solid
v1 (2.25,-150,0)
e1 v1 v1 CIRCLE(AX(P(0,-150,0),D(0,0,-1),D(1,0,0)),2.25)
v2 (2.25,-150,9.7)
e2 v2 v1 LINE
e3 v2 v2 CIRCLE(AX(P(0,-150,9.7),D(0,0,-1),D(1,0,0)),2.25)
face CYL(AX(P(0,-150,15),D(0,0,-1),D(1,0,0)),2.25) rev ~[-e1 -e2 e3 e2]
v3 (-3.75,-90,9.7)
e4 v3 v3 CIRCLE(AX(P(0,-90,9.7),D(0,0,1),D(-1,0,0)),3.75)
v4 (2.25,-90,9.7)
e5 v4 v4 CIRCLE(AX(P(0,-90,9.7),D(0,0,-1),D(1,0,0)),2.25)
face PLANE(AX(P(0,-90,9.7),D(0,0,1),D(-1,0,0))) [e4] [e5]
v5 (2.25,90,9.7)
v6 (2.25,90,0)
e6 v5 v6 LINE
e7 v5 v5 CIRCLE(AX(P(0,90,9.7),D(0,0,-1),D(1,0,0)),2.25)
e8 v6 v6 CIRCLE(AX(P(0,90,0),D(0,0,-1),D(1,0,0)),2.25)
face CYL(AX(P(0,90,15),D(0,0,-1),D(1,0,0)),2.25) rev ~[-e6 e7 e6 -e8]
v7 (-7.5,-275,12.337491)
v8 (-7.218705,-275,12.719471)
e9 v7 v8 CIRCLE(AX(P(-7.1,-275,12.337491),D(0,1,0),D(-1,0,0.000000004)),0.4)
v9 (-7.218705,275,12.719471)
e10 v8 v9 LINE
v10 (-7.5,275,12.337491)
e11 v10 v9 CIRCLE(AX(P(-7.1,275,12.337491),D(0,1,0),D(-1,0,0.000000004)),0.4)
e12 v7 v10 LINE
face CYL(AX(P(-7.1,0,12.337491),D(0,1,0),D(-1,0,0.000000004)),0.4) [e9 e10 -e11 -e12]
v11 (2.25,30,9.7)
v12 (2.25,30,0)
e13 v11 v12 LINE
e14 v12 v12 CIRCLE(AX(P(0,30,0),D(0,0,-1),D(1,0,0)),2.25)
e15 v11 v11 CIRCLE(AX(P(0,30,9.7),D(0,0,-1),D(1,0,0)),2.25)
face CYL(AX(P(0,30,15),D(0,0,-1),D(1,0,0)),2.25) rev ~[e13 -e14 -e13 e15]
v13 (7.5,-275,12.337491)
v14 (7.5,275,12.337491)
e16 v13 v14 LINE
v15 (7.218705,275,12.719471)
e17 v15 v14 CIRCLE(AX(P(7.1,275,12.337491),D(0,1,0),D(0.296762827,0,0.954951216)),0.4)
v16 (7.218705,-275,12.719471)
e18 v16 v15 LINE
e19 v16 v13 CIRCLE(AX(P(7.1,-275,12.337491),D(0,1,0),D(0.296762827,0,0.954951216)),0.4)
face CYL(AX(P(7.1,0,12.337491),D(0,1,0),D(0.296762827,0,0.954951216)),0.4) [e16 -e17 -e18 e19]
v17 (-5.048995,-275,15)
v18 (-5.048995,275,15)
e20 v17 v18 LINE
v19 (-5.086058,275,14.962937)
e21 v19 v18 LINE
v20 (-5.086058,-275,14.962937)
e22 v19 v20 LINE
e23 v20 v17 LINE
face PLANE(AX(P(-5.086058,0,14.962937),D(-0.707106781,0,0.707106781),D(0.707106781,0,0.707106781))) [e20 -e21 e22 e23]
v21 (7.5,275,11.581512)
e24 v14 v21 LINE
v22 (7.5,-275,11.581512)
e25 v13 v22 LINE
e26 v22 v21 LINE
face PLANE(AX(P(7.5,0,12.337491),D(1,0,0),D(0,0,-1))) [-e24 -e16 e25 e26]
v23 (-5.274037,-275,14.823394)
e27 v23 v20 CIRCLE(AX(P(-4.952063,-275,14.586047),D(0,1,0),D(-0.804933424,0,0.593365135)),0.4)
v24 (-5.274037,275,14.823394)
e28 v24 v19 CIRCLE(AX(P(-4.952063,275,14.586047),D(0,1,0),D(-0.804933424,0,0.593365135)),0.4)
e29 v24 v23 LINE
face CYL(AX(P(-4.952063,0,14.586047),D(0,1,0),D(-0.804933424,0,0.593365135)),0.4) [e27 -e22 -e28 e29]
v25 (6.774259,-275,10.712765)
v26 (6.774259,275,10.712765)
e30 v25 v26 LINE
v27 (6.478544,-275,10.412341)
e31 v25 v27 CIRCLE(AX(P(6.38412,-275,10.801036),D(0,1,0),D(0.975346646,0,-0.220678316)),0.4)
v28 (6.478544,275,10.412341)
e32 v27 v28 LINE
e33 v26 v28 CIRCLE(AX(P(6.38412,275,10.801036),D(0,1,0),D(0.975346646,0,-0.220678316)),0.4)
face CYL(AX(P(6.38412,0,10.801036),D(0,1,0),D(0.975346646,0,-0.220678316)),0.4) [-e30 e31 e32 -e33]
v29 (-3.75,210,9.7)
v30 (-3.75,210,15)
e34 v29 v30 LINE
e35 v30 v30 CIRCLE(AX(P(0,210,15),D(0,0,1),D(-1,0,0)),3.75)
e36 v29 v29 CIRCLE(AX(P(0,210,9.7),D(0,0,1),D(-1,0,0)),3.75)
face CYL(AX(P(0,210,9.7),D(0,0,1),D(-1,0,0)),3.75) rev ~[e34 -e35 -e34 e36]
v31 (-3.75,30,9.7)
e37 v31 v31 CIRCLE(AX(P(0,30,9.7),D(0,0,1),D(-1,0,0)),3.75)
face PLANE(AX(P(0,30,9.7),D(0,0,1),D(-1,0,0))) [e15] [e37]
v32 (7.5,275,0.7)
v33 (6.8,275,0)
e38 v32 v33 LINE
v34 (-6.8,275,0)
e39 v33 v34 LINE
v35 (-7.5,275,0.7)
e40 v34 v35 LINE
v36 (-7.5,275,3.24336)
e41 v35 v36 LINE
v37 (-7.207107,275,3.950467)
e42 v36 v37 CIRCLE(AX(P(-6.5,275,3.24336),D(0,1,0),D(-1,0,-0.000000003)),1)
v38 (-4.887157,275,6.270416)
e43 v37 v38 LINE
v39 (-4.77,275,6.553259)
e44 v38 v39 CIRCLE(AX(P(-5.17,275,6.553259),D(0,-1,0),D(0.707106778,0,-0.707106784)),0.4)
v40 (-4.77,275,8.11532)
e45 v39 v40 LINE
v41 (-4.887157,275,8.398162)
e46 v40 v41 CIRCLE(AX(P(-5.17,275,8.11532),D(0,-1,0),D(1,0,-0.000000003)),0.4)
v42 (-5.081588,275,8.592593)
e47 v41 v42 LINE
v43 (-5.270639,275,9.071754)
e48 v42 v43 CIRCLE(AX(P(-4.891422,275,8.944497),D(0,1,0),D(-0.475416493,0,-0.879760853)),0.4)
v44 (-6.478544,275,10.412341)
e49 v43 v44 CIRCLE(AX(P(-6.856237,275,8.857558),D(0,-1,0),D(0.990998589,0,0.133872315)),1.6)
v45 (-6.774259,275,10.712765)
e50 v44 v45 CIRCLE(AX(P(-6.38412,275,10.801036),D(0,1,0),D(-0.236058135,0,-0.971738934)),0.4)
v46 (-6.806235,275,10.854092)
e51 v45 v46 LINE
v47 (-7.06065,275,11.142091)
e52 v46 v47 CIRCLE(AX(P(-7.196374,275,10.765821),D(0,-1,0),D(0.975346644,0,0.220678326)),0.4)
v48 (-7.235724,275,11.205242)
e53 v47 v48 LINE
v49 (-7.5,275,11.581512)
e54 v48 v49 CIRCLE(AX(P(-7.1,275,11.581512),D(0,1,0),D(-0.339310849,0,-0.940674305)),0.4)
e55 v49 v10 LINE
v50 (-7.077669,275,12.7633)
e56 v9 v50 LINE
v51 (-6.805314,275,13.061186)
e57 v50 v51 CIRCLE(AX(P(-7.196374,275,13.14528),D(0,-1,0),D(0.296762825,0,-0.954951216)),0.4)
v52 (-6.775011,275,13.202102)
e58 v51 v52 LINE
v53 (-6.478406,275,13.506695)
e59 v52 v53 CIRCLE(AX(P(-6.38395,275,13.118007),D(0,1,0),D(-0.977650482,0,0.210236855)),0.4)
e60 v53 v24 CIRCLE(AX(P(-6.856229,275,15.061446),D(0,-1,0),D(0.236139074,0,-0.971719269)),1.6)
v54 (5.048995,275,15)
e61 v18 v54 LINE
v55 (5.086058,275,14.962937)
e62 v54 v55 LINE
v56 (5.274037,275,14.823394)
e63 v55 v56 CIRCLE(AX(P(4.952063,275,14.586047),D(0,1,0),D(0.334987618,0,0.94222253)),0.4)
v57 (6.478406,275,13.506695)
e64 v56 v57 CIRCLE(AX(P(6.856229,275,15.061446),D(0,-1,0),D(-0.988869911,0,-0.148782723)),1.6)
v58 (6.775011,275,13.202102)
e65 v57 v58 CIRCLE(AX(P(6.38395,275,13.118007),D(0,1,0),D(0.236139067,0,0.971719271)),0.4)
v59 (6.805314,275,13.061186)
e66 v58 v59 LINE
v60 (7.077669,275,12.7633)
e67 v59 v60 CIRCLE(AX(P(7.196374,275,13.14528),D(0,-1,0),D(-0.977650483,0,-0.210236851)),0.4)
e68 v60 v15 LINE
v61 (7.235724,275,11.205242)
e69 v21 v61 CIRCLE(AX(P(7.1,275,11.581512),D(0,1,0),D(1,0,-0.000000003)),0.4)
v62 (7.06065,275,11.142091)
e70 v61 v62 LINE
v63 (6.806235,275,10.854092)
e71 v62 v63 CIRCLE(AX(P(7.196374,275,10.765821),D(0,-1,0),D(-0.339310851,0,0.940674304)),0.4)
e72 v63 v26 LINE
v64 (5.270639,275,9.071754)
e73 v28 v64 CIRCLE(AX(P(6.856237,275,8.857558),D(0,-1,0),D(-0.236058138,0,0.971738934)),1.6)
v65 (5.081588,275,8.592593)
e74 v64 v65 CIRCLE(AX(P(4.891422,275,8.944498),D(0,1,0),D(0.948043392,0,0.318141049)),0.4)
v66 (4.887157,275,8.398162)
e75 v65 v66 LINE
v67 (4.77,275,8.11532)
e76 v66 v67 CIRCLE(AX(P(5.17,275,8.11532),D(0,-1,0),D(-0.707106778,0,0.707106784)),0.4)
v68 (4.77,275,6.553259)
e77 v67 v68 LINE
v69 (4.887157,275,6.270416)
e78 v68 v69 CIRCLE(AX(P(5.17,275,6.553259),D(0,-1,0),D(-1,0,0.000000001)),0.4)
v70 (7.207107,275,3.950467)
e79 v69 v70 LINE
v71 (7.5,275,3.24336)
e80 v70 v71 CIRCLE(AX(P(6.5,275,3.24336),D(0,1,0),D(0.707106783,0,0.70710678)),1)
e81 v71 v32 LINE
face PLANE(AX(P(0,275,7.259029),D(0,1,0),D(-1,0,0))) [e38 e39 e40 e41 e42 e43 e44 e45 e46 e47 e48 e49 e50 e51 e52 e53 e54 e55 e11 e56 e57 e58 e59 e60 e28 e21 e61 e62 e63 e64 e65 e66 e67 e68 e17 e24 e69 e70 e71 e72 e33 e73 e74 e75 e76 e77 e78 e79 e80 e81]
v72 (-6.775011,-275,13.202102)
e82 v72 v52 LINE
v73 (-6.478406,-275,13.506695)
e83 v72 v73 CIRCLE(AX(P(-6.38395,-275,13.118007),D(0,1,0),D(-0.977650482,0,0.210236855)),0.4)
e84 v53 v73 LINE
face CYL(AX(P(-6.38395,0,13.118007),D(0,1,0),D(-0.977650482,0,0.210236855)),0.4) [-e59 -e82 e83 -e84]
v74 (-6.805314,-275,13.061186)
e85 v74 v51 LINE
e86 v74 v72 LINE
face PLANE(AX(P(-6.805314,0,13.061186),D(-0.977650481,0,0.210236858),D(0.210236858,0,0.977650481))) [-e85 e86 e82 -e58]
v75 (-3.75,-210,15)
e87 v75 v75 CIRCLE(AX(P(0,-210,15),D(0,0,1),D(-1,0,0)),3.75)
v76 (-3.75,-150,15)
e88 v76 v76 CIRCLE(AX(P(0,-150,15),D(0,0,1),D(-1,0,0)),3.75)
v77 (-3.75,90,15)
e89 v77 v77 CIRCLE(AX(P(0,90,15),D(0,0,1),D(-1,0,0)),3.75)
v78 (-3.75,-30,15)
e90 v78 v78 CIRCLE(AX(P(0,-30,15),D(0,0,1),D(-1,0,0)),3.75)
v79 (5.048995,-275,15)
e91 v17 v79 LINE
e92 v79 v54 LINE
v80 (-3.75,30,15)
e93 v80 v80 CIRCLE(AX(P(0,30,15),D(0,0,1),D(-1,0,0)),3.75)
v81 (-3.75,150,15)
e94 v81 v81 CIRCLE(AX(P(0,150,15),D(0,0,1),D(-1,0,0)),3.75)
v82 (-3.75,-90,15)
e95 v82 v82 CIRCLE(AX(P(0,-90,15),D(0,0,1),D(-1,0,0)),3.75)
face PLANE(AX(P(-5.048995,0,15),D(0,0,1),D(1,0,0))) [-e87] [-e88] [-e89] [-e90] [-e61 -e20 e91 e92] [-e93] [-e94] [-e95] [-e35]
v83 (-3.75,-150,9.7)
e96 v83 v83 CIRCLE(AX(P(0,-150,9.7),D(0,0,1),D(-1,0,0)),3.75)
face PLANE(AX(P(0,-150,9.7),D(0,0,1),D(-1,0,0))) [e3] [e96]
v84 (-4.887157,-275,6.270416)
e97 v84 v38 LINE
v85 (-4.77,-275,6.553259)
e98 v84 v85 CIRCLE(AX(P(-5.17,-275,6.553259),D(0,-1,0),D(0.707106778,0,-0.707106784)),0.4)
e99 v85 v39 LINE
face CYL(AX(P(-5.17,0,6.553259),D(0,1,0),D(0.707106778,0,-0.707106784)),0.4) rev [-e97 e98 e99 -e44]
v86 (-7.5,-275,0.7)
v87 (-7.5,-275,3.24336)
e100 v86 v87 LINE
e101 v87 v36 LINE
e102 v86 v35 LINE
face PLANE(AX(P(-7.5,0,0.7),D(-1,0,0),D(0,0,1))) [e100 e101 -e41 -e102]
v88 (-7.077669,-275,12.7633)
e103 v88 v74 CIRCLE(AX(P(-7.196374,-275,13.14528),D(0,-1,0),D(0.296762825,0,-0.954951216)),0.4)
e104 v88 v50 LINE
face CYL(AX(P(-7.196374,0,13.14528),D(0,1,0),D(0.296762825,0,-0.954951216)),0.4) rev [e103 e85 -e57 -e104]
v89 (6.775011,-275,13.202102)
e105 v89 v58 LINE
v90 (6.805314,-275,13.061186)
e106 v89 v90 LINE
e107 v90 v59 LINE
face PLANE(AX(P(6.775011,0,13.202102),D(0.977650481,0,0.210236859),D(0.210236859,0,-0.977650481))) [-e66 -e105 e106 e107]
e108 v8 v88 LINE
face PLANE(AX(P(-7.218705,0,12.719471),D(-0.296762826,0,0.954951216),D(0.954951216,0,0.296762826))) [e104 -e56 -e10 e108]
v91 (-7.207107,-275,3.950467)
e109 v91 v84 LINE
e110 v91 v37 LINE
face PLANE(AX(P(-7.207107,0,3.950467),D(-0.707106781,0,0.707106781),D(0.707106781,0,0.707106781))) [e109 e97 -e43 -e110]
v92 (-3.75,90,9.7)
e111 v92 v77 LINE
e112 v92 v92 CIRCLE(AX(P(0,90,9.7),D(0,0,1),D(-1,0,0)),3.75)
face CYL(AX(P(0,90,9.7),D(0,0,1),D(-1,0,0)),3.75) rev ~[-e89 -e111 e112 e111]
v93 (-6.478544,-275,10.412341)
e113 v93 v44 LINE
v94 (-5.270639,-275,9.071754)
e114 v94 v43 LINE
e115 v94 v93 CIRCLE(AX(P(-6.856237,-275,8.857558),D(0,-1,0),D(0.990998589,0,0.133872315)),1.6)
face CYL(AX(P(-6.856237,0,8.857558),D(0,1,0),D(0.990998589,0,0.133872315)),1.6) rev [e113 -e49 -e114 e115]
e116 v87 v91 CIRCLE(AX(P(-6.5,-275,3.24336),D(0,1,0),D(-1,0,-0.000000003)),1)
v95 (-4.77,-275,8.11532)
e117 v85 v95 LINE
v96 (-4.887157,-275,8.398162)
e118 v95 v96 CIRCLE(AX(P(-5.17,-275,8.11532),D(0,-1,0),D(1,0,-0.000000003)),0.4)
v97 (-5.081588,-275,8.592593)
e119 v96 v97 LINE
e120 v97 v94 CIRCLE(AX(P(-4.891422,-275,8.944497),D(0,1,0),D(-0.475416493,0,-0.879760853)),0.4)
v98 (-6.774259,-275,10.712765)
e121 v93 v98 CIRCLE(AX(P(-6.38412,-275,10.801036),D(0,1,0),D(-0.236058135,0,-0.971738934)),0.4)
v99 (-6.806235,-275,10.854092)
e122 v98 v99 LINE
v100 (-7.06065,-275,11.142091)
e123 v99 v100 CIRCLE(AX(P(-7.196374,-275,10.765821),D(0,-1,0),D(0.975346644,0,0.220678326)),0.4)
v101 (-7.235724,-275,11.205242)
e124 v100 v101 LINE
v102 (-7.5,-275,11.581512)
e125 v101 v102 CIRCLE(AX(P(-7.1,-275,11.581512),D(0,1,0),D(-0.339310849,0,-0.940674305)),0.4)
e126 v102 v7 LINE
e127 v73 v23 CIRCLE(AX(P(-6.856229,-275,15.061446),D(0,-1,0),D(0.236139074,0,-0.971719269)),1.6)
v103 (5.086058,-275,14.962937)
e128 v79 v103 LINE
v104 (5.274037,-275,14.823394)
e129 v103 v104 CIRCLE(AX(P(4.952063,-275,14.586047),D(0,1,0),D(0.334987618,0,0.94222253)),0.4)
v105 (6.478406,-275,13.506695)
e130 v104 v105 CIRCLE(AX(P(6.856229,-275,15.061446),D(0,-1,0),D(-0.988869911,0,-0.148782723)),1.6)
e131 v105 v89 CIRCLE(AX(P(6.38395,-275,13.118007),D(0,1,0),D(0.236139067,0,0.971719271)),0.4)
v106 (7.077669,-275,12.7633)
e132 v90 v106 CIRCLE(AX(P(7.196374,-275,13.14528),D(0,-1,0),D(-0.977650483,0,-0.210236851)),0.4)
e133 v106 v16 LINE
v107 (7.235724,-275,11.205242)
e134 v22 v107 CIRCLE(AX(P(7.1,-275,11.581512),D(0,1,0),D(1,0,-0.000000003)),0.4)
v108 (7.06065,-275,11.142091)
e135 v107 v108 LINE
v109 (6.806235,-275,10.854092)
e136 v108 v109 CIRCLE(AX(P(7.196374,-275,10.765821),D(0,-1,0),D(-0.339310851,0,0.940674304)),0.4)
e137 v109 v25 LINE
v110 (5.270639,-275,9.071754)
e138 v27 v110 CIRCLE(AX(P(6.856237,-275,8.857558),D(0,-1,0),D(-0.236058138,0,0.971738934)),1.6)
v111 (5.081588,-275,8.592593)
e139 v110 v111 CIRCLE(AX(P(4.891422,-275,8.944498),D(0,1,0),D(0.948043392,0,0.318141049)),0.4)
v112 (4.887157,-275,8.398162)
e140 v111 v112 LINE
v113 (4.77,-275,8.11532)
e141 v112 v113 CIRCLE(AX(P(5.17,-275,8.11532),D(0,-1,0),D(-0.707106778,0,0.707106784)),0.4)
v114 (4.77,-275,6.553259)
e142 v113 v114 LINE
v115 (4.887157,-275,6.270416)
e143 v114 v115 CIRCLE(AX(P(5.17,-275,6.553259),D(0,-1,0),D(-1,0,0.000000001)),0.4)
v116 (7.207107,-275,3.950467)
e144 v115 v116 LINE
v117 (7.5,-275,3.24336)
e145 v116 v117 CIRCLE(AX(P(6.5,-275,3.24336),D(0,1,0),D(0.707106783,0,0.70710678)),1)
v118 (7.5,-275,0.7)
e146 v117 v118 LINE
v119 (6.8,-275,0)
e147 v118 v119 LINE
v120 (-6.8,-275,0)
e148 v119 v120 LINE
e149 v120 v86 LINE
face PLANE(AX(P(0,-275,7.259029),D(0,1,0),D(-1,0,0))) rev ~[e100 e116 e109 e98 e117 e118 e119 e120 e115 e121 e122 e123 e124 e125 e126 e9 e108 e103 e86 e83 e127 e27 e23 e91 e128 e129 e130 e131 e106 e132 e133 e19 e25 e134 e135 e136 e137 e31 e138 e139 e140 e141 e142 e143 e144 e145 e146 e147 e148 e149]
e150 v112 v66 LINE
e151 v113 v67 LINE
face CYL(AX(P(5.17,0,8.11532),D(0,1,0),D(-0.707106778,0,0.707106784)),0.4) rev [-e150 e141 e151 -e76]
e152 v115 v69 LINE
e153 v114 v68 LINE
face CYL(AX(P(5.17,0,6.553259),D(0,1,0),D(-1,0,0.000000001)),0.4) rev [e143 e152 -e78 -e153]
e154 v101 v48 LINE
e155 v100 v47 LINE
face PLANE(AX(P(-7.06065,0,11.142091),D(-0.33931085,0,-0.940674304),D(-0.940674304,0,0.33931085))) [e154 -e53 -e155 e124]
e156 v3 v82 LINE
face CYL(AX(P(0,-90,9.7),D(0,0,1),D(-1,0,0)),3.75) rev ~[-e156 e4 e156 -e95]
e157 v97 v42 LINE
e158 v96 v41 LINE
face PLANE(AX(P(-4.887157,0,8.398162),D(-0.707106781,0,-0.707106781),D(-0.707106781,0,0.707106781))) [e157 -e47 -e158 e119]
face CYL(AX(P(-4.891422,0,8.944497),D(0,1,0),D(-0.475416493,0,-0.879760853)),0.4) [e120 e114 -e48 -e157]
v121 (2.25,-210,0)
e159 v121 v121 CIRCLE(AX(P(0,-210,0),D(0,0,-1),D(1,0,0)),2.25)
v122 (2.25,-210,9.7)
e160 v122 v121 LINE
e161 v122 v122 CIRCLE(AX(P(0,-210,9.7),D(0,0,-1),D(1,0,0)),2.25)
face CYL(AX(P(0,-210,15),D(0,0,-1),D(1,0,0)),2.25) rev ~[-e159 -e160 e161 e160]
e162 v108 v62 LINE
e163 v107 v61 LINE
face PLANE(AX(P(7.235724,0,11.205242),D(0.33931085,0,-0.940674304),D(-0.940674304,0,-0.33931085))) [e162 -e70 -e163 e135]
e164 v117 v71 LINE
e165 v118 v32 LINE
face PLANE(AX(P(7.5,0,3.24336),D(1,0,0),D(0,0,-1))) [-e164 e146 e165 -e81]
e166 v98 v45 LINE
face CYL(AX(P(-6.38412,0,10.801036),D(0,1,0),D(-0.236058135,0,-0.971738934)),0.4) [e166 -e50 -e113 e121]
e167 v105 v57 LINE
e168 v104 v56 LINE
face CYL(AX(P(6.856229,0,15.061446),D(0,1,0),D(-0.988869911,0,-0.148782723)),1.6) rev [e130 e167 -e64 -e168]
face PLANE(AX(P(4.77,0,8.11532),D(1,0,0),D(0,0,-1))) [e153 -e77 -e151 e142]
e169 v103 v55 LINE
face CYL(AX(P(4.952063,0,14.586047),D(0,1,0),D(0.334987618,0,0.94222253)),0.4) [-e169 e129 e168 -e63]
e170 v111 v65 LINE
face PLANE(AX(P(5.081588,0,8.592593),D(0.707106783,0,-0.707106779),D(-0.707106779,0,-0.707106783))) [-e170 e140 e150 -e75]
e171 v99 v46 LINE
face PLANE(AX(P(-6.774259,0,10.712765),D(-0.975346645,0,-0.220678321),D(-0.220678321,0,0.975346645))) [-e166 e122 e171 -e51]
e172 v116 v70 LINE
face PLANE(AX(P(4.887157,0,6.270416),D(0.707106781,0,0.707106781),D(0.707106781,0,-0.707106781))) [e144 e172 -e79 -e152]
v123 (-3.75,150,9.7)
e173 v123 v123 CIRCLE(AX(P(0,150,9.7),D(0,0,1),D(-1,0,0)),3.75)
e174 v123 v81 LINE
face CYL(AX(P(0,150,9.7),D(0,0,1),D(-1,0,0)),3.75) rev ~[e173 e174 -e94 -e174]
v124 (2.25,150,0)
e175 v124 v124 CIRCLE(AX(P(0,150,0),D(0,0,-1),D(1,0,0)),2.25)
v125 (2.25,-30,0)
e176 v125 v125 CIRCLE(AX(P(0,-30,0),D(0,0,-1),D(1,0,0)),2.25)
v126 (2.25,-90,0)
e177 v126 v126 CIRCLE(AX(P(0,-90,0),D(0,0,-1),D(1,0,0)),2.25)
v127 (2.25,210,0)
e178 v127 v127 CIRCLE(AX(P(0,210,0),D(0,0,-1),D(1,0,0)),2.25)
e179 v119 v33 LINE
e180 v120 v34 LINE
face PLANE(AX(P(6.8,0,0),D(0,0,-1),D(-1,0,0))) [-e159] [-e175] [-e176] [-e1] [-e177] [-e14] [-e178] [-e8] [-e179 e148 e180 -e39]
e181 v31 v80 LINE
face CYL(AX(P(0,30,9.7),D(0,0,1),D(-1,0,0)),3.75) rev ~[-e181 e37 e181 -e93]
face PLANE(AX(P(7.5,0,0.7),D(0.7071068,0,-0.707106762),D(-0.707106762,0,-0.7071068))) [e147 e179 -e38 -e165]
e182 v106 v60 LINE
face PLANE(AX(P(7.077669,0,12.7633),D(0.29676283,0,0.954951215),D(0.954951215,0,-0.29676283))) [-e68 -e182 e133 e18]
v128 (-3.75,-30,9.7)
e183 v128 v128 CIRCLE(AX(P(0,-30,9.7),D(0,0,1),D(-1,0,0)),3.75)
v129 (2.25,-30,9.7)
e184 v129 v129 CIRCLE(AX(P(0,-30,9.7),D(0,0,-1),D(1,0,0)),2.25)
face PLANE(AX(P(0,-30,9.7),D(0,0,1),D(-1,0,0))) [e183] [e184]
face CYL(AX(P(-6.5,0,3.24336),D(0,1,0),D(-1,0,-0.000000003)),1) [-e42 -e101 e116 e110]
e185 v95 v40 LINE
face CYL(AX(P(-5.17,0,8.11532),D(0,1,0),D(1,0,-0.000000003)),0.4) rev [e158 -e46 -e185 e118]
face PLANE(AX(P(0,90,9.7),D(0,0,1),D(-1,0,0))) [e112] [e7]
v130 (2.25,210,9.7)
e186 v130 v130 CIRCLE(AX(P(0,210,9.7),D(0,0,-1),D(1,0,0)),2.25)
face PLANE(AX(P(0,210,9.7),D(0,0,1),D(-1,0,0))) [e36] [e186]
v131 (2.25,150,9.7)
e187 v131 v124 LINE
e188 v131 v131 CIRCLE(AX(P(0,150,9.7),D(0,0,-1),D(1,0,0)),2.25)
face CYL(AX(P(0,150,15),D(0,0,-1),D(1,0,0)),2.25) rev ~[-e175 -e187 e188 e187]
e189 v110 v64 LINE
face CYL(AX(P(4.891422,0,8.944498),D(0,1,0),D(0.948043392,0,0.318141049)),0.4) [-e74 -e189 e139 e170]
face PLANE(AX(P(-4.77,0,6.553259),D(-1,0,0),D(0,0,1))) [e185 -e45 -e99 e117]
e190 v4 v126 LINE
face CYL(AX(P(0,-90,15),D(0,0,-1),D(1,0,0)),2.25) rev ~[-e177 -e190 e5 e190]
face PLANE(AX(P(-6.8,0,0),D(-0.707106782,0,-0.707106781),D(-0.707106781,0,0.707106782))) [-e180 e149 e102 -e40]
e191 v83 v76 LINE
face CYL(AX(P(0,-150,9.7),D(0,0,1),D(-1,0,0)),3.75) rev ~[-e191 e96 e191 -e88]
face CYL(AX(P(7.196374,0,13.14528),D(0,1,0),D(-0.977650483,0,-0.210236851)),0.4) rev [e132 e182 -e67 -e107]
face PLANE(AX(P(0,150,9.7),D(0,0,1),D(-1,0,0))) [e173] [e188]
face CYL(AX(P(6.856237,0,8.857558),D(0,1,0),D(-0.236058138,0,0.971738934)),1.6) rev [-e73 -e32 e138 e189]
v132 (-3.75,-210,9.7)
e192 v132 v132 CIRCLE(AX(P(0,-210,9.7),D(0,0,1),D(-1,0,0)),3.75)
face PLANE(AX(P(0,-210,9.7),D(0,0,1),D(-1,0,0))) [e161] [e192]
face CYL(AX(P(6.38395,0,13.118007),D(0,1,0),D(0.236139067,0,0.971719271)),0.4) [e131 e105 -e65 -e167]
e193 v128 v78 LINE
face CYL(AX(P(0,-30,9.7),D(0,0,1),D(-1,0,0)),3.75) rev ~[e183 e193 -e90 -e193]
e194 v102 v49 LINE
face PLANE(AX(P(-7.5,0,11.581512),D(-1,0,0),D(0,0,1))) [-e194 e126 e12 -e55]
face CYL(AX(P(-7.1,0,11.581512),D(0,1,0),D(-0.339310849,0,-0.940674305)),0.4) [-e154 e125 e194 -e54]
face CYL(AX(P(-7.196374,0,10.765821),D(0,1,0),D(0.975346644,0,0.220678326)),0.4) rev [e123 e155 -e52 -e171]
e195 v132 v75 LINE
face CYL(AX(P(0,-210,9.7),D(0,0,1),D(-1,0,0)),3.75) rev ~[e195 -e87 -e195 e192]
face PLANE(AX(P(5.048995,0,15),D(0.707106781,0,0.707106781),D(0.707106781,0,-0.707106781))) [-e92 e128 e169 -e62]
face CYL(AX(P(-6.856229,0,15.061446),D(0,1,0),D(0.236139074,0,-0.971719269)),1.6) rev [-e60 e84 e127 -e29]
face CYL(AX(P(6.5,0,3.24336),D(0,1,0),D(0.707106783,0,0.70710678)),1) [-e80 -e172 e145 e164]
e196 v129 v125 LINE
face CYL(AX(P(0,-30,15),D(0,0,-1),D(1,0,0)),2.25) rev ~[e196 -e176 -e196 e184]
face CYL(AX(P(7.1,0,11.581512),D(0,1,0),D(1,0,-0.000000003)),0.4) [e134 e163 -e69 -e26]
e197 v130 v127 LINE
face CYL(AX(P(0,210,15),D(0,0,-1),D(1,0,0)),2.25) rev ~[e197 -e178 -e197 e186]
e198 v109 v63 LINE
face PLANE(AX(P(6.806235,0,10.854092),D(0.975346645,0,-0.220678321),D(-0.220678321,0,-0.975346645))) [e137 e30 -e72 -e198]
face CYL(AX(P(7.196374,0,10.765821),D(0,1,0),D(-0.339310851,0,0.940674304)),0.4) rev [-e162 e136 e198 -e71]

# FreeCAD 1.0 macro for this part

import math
import FreeCAD as App
import Part
import Sketcher

V = App.Vector
Q = App.Units.Quantity

doc = App.newDocument("Part")
params = doc.addObject("Spreadsheet::Sheet", "Params")
for row, (alias, value) in enumerate([
    ("sketch1_radius", "1 mm"),
    ("sketch1_radius2", "1 mm"),
    ("sketch1_radius3", "0.4 mm"),
    ("sketch1_radius4", "1.6 mm"),
    ("sketch1_radius5", "0.4 mm"),
    ("pad1_length", "550 mm"),
    ("sketch2_diameter", "4.5 mm"),
    ("hole_diameter", "4.5 mm"),
    ("hole_cbore_diameter", "7.5 mm"),
    ("hole_cbore_depth", "5.3 mm"),
    ("linearpattern_pitch", "60 mm"),
    ("linearpattern2_pitch", "60 mm"),
], start=1):
    params.set(f"A{row}", alias)
    params.set(f"B{row}", "=" + value)
    params.setAlias(f"B{row}", alias)

body = doc.addObject("PartDesign::Body", "Body")

sketch1 = body.newObject("Sketcher::SketchObject", "Sketch")
sketch1.AttachmentSupport = (doc.getObject("XZ_Plane"), [""])
sketch1.MapMode = "FlatFace"
sketch1.addGeometry(Part.LineSegment(V(-5.086058, 14.962937, 0), V(-5.048995, 15, 0)), False)
sketch1.addGeometry(Part.LineSegment(V(-5.048995, 15, 0), V(5.048995, 15, 0)), False)
sketch1.addGeometry(Part.LineSegment(V(5.048995, 15, 0), V(5.086058, 14.962937, 0)), False)
sketch1.addGeometry(Part.ArcOfCircle(Part.Circle(V(4.952063, 14.586047, 0), V(0, 0, 1), 0.4), math.radians(36.396174), math.radians(70.428215)), False)
sketch1.addGeometry(Part.ArcOfCircle(Part.Circle(V(6.856229, 15.061446, 0), V(0, 0, 1), 1.6), math.radians(-171.44361), math.radians(-103.658777)), False)
sketch1.addGeometry(Part.ArcOfCircle(Part.Circle(V(6.38395, 13.118007, 0), V(0, 0, 1), 0.4), math.radians(12.136233), math.radians(76.341224)), False)
sketch1.addGeometry(Part.LineSegment(V(6.775011, 13.202102, 0), V(6.805314, 13.061186, 0)), False)
sketch1.addGeometry(Part.ArcOfCircle(Part.Circle(V(7.196374, 13.14528, 0), V(0, 0, 1), 0.4), math.radians(-167.863767), math.radians(-107.263274)), False)
sketch1.addGeometry(Part.LineSegment(V(7.077669, 12.7633, 0), V(7.218705, 12.719471, 0)), False)
sketch1.addGeometry(Part.ArcOfCircle(Part.Circle(V(7.1, 12.337491, 0), V(0, 0, 1), 0.4), math.radians(0), math.radians(72.736726)), False)
sketch1.addGeometry(Part.LineSegment(V(7.5, 12.337491, 0), V(7.5, 11.581512, 0)), False)
sketch1.addGeometry(Part.ArcOfCircle(Part.Circle(V(7.1, 11.581512, 0), V(0, 0, 1), 0.4), math.radians(-70.165107), math.radians(0)), False)
sketch1.addGeometry(Part.LineSegment(V(7.235724, 11.205242, 0), V(7.06065, 11.142091, 0)), False)
sketch1.addGeometry(Part.ArcOfCircle(Part.Circle(V(7.196374, 10.765821, 0), V(0, 0, 1), 0.4), math.radians(109.834893), math.radians(167.251123)), False)
sketch1.addGeometry(Part.LineSegment(V(6.806235, 10.854092, 0), V(6.774259, 10.712765, 0)), False)
sketch1.addGeometry(Part.ArcOfCircle(Part.Circle(V(6.38412, 10.801036, 0), V(0, 0, 1), 0.4), math.radians(-76.345996), math.radians(-12.748877)), False)
sketch1.addGeometry(Part.ArcOfCircle(Part.Circle(V(6.856237, 8.857558, 0), V(0, 0, 1), 1.6), math.radians(103.654005), math.radians(172.306584)), False)
sketch1.addGeometry(Part.ArcOfCircle(Part.Circle(V(4.891422, 8.944498, 0), V(0, 0, 1), 0.4), math.radians(-61.613528), math.radians(18.550541)), False)
sketch1.addGeometry(Part.LineSegment(V(5.081588, 8.592593, 0), V(4.887157, 8.398162, 0)), False)
sketch1.addGeometry(Part.ArcOfCircle(Part.Circle(V(5.17, 8.11532, 0), V(0, 0, 1), 0.4), math.radians(135), math.radians(180)), False)
sketch1.addGeometry(Part.LineSegment(V(4.77, 8.11532, 0), V(4.77, 6.553259, 0)), False)
sketch1.addGeometry(Part.ArcOfCircle(Part.Circle(V(5.17, 6.553259, 0), V(0, 0, 1), 0.4), math.radians(180), math.radians(225)), False)
sketch1.addGeometry(Part.LineSegment(V(4.887157, 6.270416, 0), V(7.207107, 3.950467, 0)), False)
sketch1.addGeometry(Part.ArcOfCircle(Part.Circle(V(6.5, 3.24336, 0), V(0, 0, 1), 1), math.radians(0), math.radians(45)), False)
sketch1.addGeometry(Part.LineSegment(V(7.5, 3.24336, 0), V(7.5, 0.7, 0)), False)
sketch1.addGeometry(Part.LineSegment(V(7.5, 0.7, 0), V(6.8, 0, 0)), False)
sketch1.addGeometry(Part.LineSegment(V(6.8, 0, 0), V(-6.8, 0, 0)), False)
sketch1.addGeometry(Part.LineSegment(V(-6.8, 0, 0), V(-7.5, 0.7, 0)), False)
sketch1.addGeometry(Part.LineSegment(V(-7.5, 0.7, 0), V(-7.5, 3.24336, 0)), False)
sketch1.addGeometry(Part.ArcOfCircle(Part.Circle(V(-6.5, 3.24336, 0), V(0, 0, 1), 1), math.radians(135), math.radians(180)), False)
sketch1.addGeometry(Part.LineSegment(V(-7.207107, 3.950467, 0), V(-4.887157, 6.270416, 0)), False)
sketch1.addGeometry(Part.ArcOfCircle(Part.Circle(V(-5.17, 6.553259, 0), V(0, 0, 1), 0.4), math.radians(-45), math.radians(0)), False)
sketch1.addGeometry(Part.LineSegment(V(-4.77, 6.553259, 0), V(-4.77, 8.11532, 0)), False)
sketch1.addGeometry(Part.ArcOfCircle(Part.Circle(V(-5.17, 8.11532, 0), V(0, 0, 1), 0.4), math.radians(0), math.radians(45)), False)
sketch1.addGeometry(Part.LineSegment(V(-4.887157, 8.398162, 0), V(-5.081588, 8.592593, 0)), False)
sketch1.addGeometry(Part.ArcOfCircle(Part.Circle(V(-4.891422, 8.944497, 0), V(0, 0, 1), 0.4), math.radians(161.449457), math.radians(241.613529)), False)
sketch1.addGeometry(Part.ArcOfCircle(Part.Circle(V(-6.856237, 8.857558, 0), V(0, 0, 1), 1.6), math.radians(7.693416), math.radians(76.345995)), False)
sketch1.addGeometry(Part.ArcOfCircle(Part.Circle(V(-6.38412, 10.801036, 0), V(0, 0, 1), 0.4), math.radians(-167.251123), math.radians(-103.654004)), False)
sketch1.addGeometry(Part.LineSegment(V(-6.774259, 10.712765, 0), V(-6.806235, 10.854092, 0)), False)
sketch1.addGeometry(Part.ArcOfCircle(Part.Circle(V(-7.196374, 10.765821, 0), V(0, 0, 1), 0.4), math.radians(12.748878), math.radians(70.165107)), False)
sketch1.addGeometry(Part.LineSegment(V(-7.06065, 11.142091, 0), V(-7.235724, 11.205242, 0)), False)
sketch1.addGeometry(Part.ArcOfCircle(Part.Circle(V(-7.1, 11.581512, 0), V(0, 0, 1), 0.4), math.radians(180), math.radians(250.165107)), False)
sketch1.addGeometry(Part.LineSegment(V(-7.5, 11.581512, 0), V(-7.5, 12.337491, 0)), False)
sketch1.addGeometry(Part.ArcOfCircle(Part.Circle(V(-7.1, 12.337491, 0), V(0, 0, 1), 0.4), math.radians(107.263275), math.radians(180)), False)
sketch1.addGeometry(Part.LineSegment(V(-7.218705, 12.719471, 0), V(-7.077669, 12.7633, 0)), False)
sketch1.addGeometry(Part.ArcOfCircle(Part.Circle(V(-7.196374, 13.14528, 0), V(0, 0, 1), 0.4), math.radians(-72.736726), math.radians(-12.136233)), False)
sketch1.addGeometry(Part.LineSegment(V(-6.805314, 13.061186, 0), V(-6.775011, 13.202102, 0)), False)
sketch1.addGeometry(Part.ArcOfCircle(Part.Circle(V(-6.38395, 13.118007, 0), V(0, 0, 1), 0.4), math.radians(103.658777), math.radians(167.863767)), False)
sketch1.addGeometry(Part.ArcOfCircle(Part.Circle(V(-6.856229, 15.061446, 0), V(0, 0, 1), 1.6), math.radians(-76.341223), math.radians(-8.55639)), False)
sketch1.addGeometry(Part.ArcOfCircle(Part.Circle(V(-4.952063, 14.586047, 0), V(0, 0, 1), 0.4), math.radians(109.571785), math.radians(143.603826)), False)
sketch1.addConstraint(Sketcher.Constraint("Coincident", 0, 2, 1, 1))
sketch1.addConstraint(Sketcher.Constraint("Coincident", 1, 2, 2, 1))
sketch1.addConstraint(Sketcher.Constraint("Coincident", 2, 2, 3, 2))
sketch1.addConstraint(Sketcher.Constraint("Coincident", 3, 1, 4, 1))
sketch1.addConstraint(Sketcher.Constraint("Coincident", 4, 2, 5, 2))
sketch1.addConstraint(Sketcher.Constraint("Coincident", 5, 1, 6, 1))
sketch1.addConstraint(Sketcher.Constraint("Coincident", 6, 2, 7, 1))
sketch1.addConstraint(Sketcher.Constraint("Coincident", 7, 2, 8, 1))
sketch1.addConstraint(Sketcher.Constraint("Coincident", 8, 2, 9, 2))
sketch1.addConstraint(Sketcher.Constraint("Coincident", 9, 1, 10, 1))
sketch1.addConstraint(Sketcher.Constraint("Coincident", 10, 2, 11, 2))
sketch1.addConstraint(Sketcher.Constraint("Coincident", 11, 1, 12, 1))
sketch1.addConstraint(Sketcher.Constraint("Coincident", 12, 2, 13, 1))
sketch1.addConstraint(Sketcher.Constraint("Coincident", 13, 2, 14, 1))
sketch1.addConstraint(Sketcher.Constraint("Coincident", 14, 2, 15, 2))
sketch1.addConstraint(Sketcher.Constraint("Coincident", 15, 1, 16, 1))
sketch1.addConstraint(Sketcher.Constraint("Coincident", 16, 2, 17, 2))
sketch1.addConstraint(Sketcher.Constraint("Coincident", 17, 1, 18, 1))
sketch1.addConstraint(Sketcher.Constraint("Coincident", 18, 2, 19, 1))
sketch1.addConstraint(Sketcher.Constraint("Coincident", 19, 2, 20, 1))
sketch1.addConstraint(Sketcher.Constraint("Coincident", 20, 2, 21, 1))
sketch1.addConstraint(Sketcher.Constraint("Coincident", 21, 2, 22, 1))
sketch1.addConstraint(Sketcher.Constraint("Coincident", 22, 2, 23, 2))
sketch1.addConstraint(Sketcher.Constraint("Coincident", 23, 1, 24, 1))
sketch1.addConstraint(Sketcher.Constraint("Coincident", 24, 2, 25, 1))
sketch1.addConstraint(Sketcher.Constraint("Coincident", 25, 2, 26, 1))
sketch1.addConstraint(Sketcher.Constraint("Coincident", 26, 2, 27, 1))
sketch1.addConstraint(Sketcher.Constraint("Coincident", 27, 2, 28, 1))
sketch1.addConstraint(Sketcher.Constraint("Coincident", 28, 2, 29, 2))
sketch1.addConstraint(Sketcher.Constraint("Coincident", 29, 1, 30, 1))
sketch1.addConstraint(Sketcher.Constraint("Coincident", 30, 2, 31, 1))
sketch1.addConstraint(Sketcher.Constraint("Coincident", 31, 2, 32, 1))
sketch1.addConstraint(Sketcher.Constraint("Coincident", 32, 2, 33, 1))
sketch1.addConstraint(Sketcher.Constraint("Coincident", 33, 2, 34, 1))
sketch1.addConstraint(Sketcher.Constraint("Coincident", 34, 2, 35, 2))
sketch1.addConstraint(Sketcher.Constraint("Coincident", 35, 1, 36, 1))
sketch1.addConstraint(Sketcher.Constraint("Coincident", 36, 2, 37, 2))
sketch1.addConstraint(Sketcher.Constraint("Coincident", 37, 1, 38, 1))
sketch1.addConstraint(Sketcher.Constraint("Coincident", 38, 2, 39, 1))
sketch1.addConstraint(Sketcher.Constraint("Coincident", 39, 2, 40, 1))
sketch1.addConstraint(Sketcher.Constraint("Coincident", 40, 2, 41, 2))
sketch1.addConstraint(Sketcher.Constraint("Coincident", 41, 1, 42, 1))
sketch1.addConstraint(Sketcher.Constraint("Coincident", 42, 2, 43, 2))
sketch1.addConstraint(Sketcher.Constraint("Coincident", 43, 1, 44, 1))
sketch1.addConstraint(Sketcher.Constraint("Coincident", 44, 2, 45, 1))
sketch1.addConstraint(Sketcher.Constraint("Coincident", 45, 2, 46, 1))
sketch1.addConstraint(Sketcher.Constraint("Coincident", 46, 2, 47, 2))
sketch1.addConstraint(Sketcher.Constraint("Coincident", 47, 1, 48, 1))
sketch1.addConstraint(Sketcher.Constraint("Coincident", 48, 2, 49, 2))
sketch1.addConstraint(Sketcher.Constraint("Coincident", 49, 1, 0, 1))
sketch1.addConstraint(Sketcher.Constraint("Horizontal", 1))
sketch1.addConstraint(Sketcher.Constraint("Vertical", 10))
sketch1.addConstraint(Sketcher.Constraint("Vertical", 20))
sketch1.addConstraint(Sketcher.Constraint("Vertical", 24))
sketch1.addConstraint(Sketcher.Constraint("Horizontal", 26))
sketch1.addConstraint(Sketcher.Constraint("Vertical", 28))
sketch1.addConstraint(Sketcher.Constraint("Vertical", 32))
sketch1.addConstraint(Sketcher.Constraint("Vertical", 42))
sketch1.addConstraint(Sketcher.Constraint("PointOnObject", 25, 2, -1))
sketch1.addConstraint(Sketcher.Constraint("Radius", 23, Q("1 mm")))
sketch1.addConstraint(Sketcher.Constraint("Radius", 29, Q("1 mm")))
sketch1.addConstraint(Sketcher.Constraint("Radius", 3, Q("0.4 mm")))
sketch1.addConstraint(Sketcher.Constraint("Radius", 4, Q("1.6 mm")))
sketch1.addConstraint(Sketcher.Constraint("Radius", 5, Q("0.4 mm")))
sketch1.addConstraint(Sketcher.Constraint("Radius", 7, Q("0.4 mm")))
sketch1.addConstraint(Sketcher.Constraint("Radius", 9, Q("0.4 mm")))
sketch1.addConstraint(Sketcher.Constraint("Radius", 11, Q("0.4 mm")))
sketch1.addConstraint(Sketcher.Constraint("Radius", 13, Q("0.4 mm")))
sketch1.addConstraint(Sketcher.Constraint("Radius", 15, Q("0.4 mm")))
sketch1.addConstraint(Sketcher.Constraint("Radius", 16, Q("1.6 mm")))
sketch1.addConstraint(Sketcher.Constraint("Radius", 17, Q("0.4 mm")))
sketch1.addConstraint(Sketcher.Constraint("Radius", 19, Q("0.4 mm")))
sketch1.addConstraint(Sketcher.Constraint("Radius", 21, Q("0.4 mm")))
sketch1.addConstraint(Sketcher.Constraint("Radius", 31, Q("0.4 mm")))
sketch1.addConstraint(Sketcher.Constraint("Radius", 33, Q("0.4 mm")))
sketch1.addConstraint(Sketcher.Constraint("Radius", 35, Q("0.4 mm")))
sketch1.addConstraint(Sketcher.Constraint("Radius", 36, Q("1.6 mm")))
sketch1.addConstraint(Sketcher.Constraint("Radius", 37, Q("0.4 mm")))
sketch1.addConstraint(Sketcher.Constraint("Radius", 39, Q("0.4 mm")))
sketch1.addConstraint(Sketcher.Constraint("Radius", 41, Q("0.4 mm")))
sketch1.addConstraint(Sketcher.Constraint("Radius", 43, Q("0.4 mm")))
sketch1.addConstraint(Sketcher.Constraint("Radius", 45, Q("0.4 mm")))
sketch1.addConstraint(Sketcher.Constraint("Radius", 47, Q("0.4 mm")))
sketch1.addConstraint(Sketcher.Constraint("Radius", 48, Q("1.6 mm")))
sketch1.addConstraint(Sketcher.Constraint("Radius", 49, Q("0.4 mm")))
sketch1.addConstraint(Sketcher.Constraint("DistanceX", 26, 2, 26, 1, Q("13.6 mm")))
sketch1.addConstraint(Sketcher.Constraint("DistanceY", -1, 1, 0, 2, Q("15 mm")))
sketch1.addConstraint(Sketcher.Constraint("DistanceX", -1, 1, 9, 3, Q("7.1 mm")))
sketch1.addConstraint(Sketcher.Constraint("DistanceX", -1, 1, 23, 3, Q("6.5 mm")))
sketch1.addConstraint(Sketcher.Constraint("DistanceX", 29, 3, -1, 1, Q("6.5 mm")))
sketch1.addConstraint(Sketcher.Constraint("DistanceX", 41, 3, -1, 1, Q("7.1 mm")))
sketch1.addConstraint(Sketcher.Constraint("DistanceY", -1, 1, 24, 2, Q("0.7 mm")))
sketch1.addConstraint(Sketcher.Constraint("DistanceX", -1, 1, 25, 2, Q("6.8 mm")))
sketch1.addConstraint(Sketcher.Constraint("DistanceY", -1, 1, 27, 2, Q("0.7 mm")))
sketch1.addConstraint(Sketcher.Constraint("DistanceX", -1, 1, 19, 3, Q("5.17 mm")))
sketch1.addConstraint(Sketcher.Constraint("DistanceX", 31, 3, -1, 1, Q("5.17 mm")))
sketch1.addConstraint(Sketcher.Constraint("Distance", 14, Q("0.1449 mm")))
sketch1.addConstraint(Sketcher.Constraint("Distance", 38, Q("0.1449 mm")))
sketch1.addConstraint(Sketcher.Constraint("DistanceX", 1, 1, 1, 2, Q("10.09799 mm")))
sketch1.addConstraint(Sketcher.Constraint("DistanceY", 10, 2, 10, 1, Q("0.755979 mm")))
sketch1.addConstraint(Sketcher.Constraint("DistanceY", 20, 2, 20, 1, Q("1.562061 mm")))
sketch1.addConstraint(Sketcher.Constraint("DistanceY", 24, 2, 24, 1, Q("2.54336 mm")))
sketch1.addConstraint(Sketcher.Constraint("DistanceY", 28, 1, 28, 2, Q("2.54336 mm")))
sketch1.addConstraint(Sketcher.Constraint("DistanceY", 32, 1, 32, 2, Q("1.562061 mm")))
sketch1.addConstraint(Sketcher.Constraint("DistanceY", 42, 1, 42, 2, Q("0.755979 mm")))
sketch1.addConstraint(Sketcher.Constraint("DistanceY", -1, 1, 7, 2, Q("12.7633 mm")))
sketch1.addConstraint(Sketcher.Constraint("DistanceY", -1, 1, 44, 2, Q("12.7633 mm")))
sketch1.addConstraint(Sketcher.Constraint("Distance", 8, Q("0.14769 mm")))
sketch1.addConstraint(Sketcher.Constraint("Distance", 44, Q("0.14769 mm")))
sketch1.addConstraint(Sketcher.Constraint("DistanceX", -1, 1, 4, 3, Q("6.856229 mm")))
sketch1.addConstraint(Sketcher.Constraint("DistanceX", -1, 1, 5, 3, Q("6.38395 mm")))
sketch1.addConstraint(Sketcher.Constraint("DistanceY", -1, 1, 7, 3, Q("13.14528 mm")))
sketch1.addConstraint(Sketcher.Constraint("DistanceY", -1, 1, 9, 3, Q("12.337491 mm")))
sketch1.addConstraint(Sketcher.Constraint("DistanceY", -1, 1, 11, 3, Q("11.581512 mm")))
sketch1.addConstraint(Sketcher.Constraint("DistanceY", -1, 1, 13, 3, Q("10.765821 mm")))
sketch1.addConstraint(Sketcher.Constraint("DistanceX", -1, 1, 15, 3, Q("6.38412 mm")))
sketch1.addConstraint(Sketcher.Constraint("DistanceY", -1, 1, 16, 3, Q("8.857558 mm")))
sketch1.addConstraint(Sketcher.Constraint("DistanceX", -1, 1, 17, 3, Q("4.891422 mm")))
sketch1.addConstraint(Sketcher.Constraint("DistanceY", -1, 1, 19, 3, Q("8.11532 mm")))
sketch1.addConstraint(Sketcher.Constraint("DistanceY", -1, 1, 21, 3, Q("6.553259 mm")))
sketch1.addConstraint(Sketcher.Constraint("DistanceY", -1, 1, 23, 3, Q("3.24336 mm")))
sketch1.addConstraint(Sketcher.Constraint("DistanceY", -1, 1, 29, 3, Q("3.24336 mm")))
sketch1.addConstraint(Sketcher.Constraint("DistanceY", -1, 1, 31, 3, Q("6.553259 mm")))
sketch1.addConstraint(Sketcher.Constraint("DistanceY", -1, 1, 33, 3, Q("8.11532 mm")))
sketch1.addConstraint(Sketcher.Constraint("DistanceX", 35, 3, -1, 1, Q("4.891422 mm")))
sketch1.addConstraint(Sketcher.Constraint("DistanceY", -1, 1, 36, 3, Q("8.857558 mm")))
sketch1.addConstraint(Sketcher.Constraint("DistanceX", 37, 3, -1, 1, Q("6.38412 mm")))
sketch1.addConstraint(Sketcher.Constraint("DistanceY", -1, 1, 39, 3, Q("10.765821 mm")))
sketch1.addConstraint(Sketcher.Constraint("DistanceY", -1, 1, 41, 3, Q("11.581512 mm")))
sketch1.addConstraint(Sketcher.Constraint("DistanceY", -1, 1, 43, 3, Q("12.337491 mm")))
sketch1.addConstraint(Sketcher.Constraint("DistanceY", -1, 1, 45, 3, Q("13.14528 mm")))
sketch1.addConstraint(Sketcher.Constraint("DistanceX", 47, 3, -1, 1, Q("6.38395 mm")))
sketch1.addConstraint(Sketcher.Constraint("DistanceX", 48, 3, -1, 1, Q("6.856229 mm")))
sketch1.addConstraint(Sketcher.Constraint("DistanceX", -1, 1, 2, 2, Q("5.086058 mm")))
sketch1.addConstraint(Sketcher.Constraint("DistanceX", -1, 1, 5, 1, Q("6.775011 mm")))
sketch1.addConstraint(Sketcher.Constraint("DistanceX", -1, 1, 7, 2, Q("7.077669 mm")))
sketch1.addConstraint(Sketcher.Constraint("DistanceY", -1, 1, 9, 1, Q("12.337491 mm")))
sketch1.addConstraint(Sketcher.Constraint("DistanceY", -1, 1, 11, 1, Q("11.205242 mm")))
sketch1.addConstraint(Sketcher.Constraint("DistanceX", -1, 1, 12, 2, Q("7.06065 mm")))
sketch1.addConstraint(Sketcher.Constraint("DistanceY", -1, 1, 12, 2, Q("11.142091 mm")))
sketch1.addConstraint(Sketcher.Constraint("DistanceX", -1, 1, 14, 2, Q("6.774259 mm")))
sketch1.addConstraint(Sketcher.Constraint("DistanceY", -1, 1, 15, 1, Q("10.412341 mm")))
sketch1.addConstraint(Sketcher.Constraint("DistanceX", -1, 1, 16, 2, Q("5.270639 mm")))
sketch1.addConstraint(Sketcher.Constraint("DistanceX", -1, 1, 17, 1, Q("5.081588 mm")))
sketch1.addConstraint(Sketcher.Constraint("DistanceY", -1, 1, 19, 2, Q("8.11532 mm")))
sketch1.addConstraint(Sketcher.Constraint("DistanceY", -1, 1, 31, 2, Q("6.553259 mm")))
sketch1.addConstraint(Sketcher.Constraint("DistanceX", 34, 2, -1, 1, Q("5.081588 mm")))
sketch1.addConstraint(Sketcher.Constraint("DistanceX", 35, 1, -1, 1, Q("5.270639 mm")))
sketch1.addConstraint(Sketcher.Constraint("DistanceY", -1, 1, 36, 2, Q("10.412341 mm")))
sketch1.addConstraint(Sketcher.Constraint("DistanceX", 37, 1, -1, 1, Q("6.774259 mm")))
sketch1.addConstraint(Sketcher.Constraint("DistanceX", 39, 2, -1, 1, Q("7.06065 mm")))
sketch1.addConstraint(Sketcher.Constraint("DistanceY", -1, 1, 39, 2, Q("11.142091 mm")))
sketch1.addConstraint(Sketcher.Constraint("DistanceY", -1, 1, 40, 2, Q("11.205242 mm")))
sketch1.addConstraint(Sketcher.Constraint("DistanceY", -1, 1, 41, 1, Q("11.581512 mm")))
sketch1.addConstraint(Sketcher.Constraint("DistanceY", -1, 1, 43, 1, Q("12.719471 mm")))
sketch1.addConstraint(Sketcher.Constraint("DistanceX", 46, 2, -1, 1, Q("6.775011 mm")))
sketch1.addConstraint(Sketcher.Constraint("DistanceX", 49, 1, -1, 1, Q("5.086058 mm")))
sketch1.addConstraint(Sketcher.Constraint("Distance", 0, Q("0.052416 mm")))
sketch1.addConstraint(Sketcher.Constraint("Distance", 2, Q("0.052416 mm")))
sketch1.addConstraint(Sketcher.Constraint("Distance", 6, Q("0.144138 mm")))
sketch1.addConstraint(Sketcher.Constraint("Distance", 18, Q("0.274967 mm")))
sketch1.addConstraint(Sketcher.Constraint("Distance", 22, Q("3.280904 mm")))
sketch1.addConstraint(Sketcher.Constraint("Distance", 30, Q("3.280904 mm")))
sketch1.addConstraint(Sketcher.Constraint("Distance", 34, Q("0.274967 mm")))
sketch1.addConstraint(Sketcher.Constraint("Distance", 46, Q("0.144138 mm")))
sketch1.addConstraint(Sketcher.Constraint("DistanceX", -1, 1, 3, 3, Q("4.952063 mm")))
sketch1.addConstraint(Sketcher.Constraint("DistanceY", -1, 1, 3, 3, Q("14.586047 mm")))
sketch1.addConstraint(Sketcher.Constraint("DistanceY", -1, 1, 4, 3, Q("15.061446 mm")))
sketch1.addConstraint(Sketcher.Constraint("DistanceY", -1, 1, 15, 3, Q("10.801036 mm")))
sketch1.addConstraint(Sketcher.Constraint("DistanceY", -1, 1, 35, 3, Q("8.944497 mm")))
sketch1.addConstraint(Sketcher.Constraint("DistanceY", -1, 1, 47, 3, Q("13.118007 mm")))
sketch1.addConstraint(Sketcher.Constraint("DistanceX", 49, 3, -1, 1, Q("4.952063 mm")))
sketch1.addConstraint(Sketcher.Constraint("DistanceX", -1, 1, 4, 2, Q("6.478406 mm")))
sketch1.addConstraint(Sketcher.Constraint("DistanceX", -1, 1, 21, 2, Q("4.887157 mm")))
sketch1.addConstraint(Sketcher.Constraint("DistanceX", 29, 1, -1, 1, Q("7.207107 mm")))
sketch1.addConstraint(Sketcher.Constraint("DistanceX", 47, 1, -1, 1, Q("6.478406 mm")))
sketch1.setExpression("Constraints[59]", "Params.sketch1_radius")
sketch1.setExpression("Constraints[60]", "Params.sketch1_radius2")
sketch1.setExpression("Constraints[61]", "Params.sketch1_radius3")
sketch1.setExpression("Constraints[62]", "Params.sketch1_radius4")
sketch1.setExpression("Constraints[63]", "Params.sketch1_radius5")
pad1 = body.newObject("PartDesign::Pad", "Pad")
pad1.Profile = sketch1
pad1.setExpression("Length", "Params.pad1_length")
pad1.Midplane = True

sketch2 = body.newObject("Sketcher::SketchObject", "Sketch001")
sketch2.AttachmentSupport = (doc.getObject("XY_Plane"), [""])
sketch2.MapMode = "FlatFace"
sketch2.AttachmentOffset = App.Placement(V(0, 0, 15), App.Rotation())
sketch2.addGeometry(Part.Circle(V(0, -30, 0), V(0, 0, 1), 2.2), False)
sketch2.addConstraint(Sketcher.Constraint("PointOnObject", 0, 3, -2))
sketch2.addConstraint(Sketcher.Constraint("Diameter", 0, Q("4.5 mm")))
sketch2.addConstraint(Sketcher.Constraint("DistanceY", 0, 3, -1, 1, Q("30 mm")))
sketch2.setExpression("Constraints[1]", "Params.sketch2_diameter")
doc.recompute()
hole = body.newObject("PartDesign::Hole", "Hole")
hole.Profile = sketch2
hole.ThreadType = "None"
hole.setExpression("Diameter", "Params.hole_diameter")
hole.DepthType = "ThroughAll"
hole.HoleCutType = "Counterbore"
hole.setExpression("HoleCutDiameter", "Params.hole_cbore_diameter")
hole.setExpression("HoleCutDepth", "Params.hole_cbore_depth")
doc.recompute()

linearpattern = body.newObject("PartDesign::LinearPattern", "LinearPattern")
linearpattern.Originals = [hole]
linearpattern.Direction = (doc.getObject("Y_Axis"), [""])
linearpattern.Mode = "offset"
linearpattern.setExpression("Offset", "Params.linearpattern_pitch")
linearpattern.Occurrences = 5
body.Tip = linearpattern
doc.recompute()

linearpattern2 = body.newObject("PartDesign::LinearPattern", "LinearPattern001")
linearpattern2.Originals = [hole]
linearpattern2.Direction = (doc.getObject("Y_Axis"), [""])
linearpattern2.Mode = "offset"
linearpattern2.setExpression("Offset", "Params.linearpattern2_pitch")
linearpattern2.Occurrences = 4
linearpattern2.Reversed = True
body.Tip = linearpattern2

doc.recompute()
